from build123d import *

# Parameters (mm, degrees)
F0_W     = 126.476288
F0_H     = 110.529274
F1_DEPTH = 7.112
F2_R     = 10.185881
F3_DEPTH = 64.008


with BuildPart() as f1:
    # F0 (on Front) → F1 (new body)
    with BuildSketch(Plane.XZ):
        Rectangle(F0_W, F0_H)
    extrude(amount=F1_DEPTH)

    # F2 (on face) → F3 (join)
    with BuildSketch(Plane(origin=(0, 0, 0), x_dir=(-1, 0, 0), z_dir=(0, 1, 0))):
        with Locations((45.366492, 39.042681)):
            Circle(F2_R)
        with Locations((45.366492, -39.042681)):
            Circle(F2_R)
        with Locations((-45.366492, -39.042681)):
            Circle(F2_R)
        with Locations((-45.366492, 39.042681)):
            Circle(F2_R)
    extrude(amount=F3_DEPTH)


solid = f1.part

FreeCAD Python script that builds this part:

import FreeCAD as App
import Part
import Sketcher
Q = App.Units.Quantity


def add_polygon(sketch, points):
    """Adds a closed chain of lines whose ends are joined by coincident constraints."""
    first, n = sketch.GeometryCount, len(points)
    for a, b in zip(points, points[1:] + points[:1]):
        sketch.addGeometry(Part.LineSegment(App.Vector(*a, 0), App.Vector(*b, 0)), False)
    for i in range(n):
        sketch.addConstraint(Sketcher.Constraint("Coincident", first + i, 2, first + (i + 1) % n, 1))

doc = App.newDocument("Part")
body = doc.addObject("PartDesign::Body", "Body")

# Sketch on XZ plane
sketch1 = body.newObject("Sketcher::SketchObject", "Sketch")
sketch1.AttachmentSupport = (doc.getObject("XZ_Plane"), [""])
sketch1.MapMode = "FlatFace"
add_polygon(sketch1, [(-63, 55), (-63, -55), (63, -55), (63, 55)])  # lines 0-3
sketch1.addConstraint(Sketcher.Constraint("Vertical", 0))
sketch1.addConstraint(Sketcher.Constraint("Horizontal", 1))
sketch1.addConstraint(Sketcher.Constraint("Vertical", 2))
sketch1.addConstraint(Sketcher.Constraint("Horizontal", 3))
sketch1.addConstraint(Sketcher.Constraint("Symmetric", 0, 2, 2, 2, -1, 1))
sketch1.addConstraint(Sketcher.Constraint("DistanceX", 1, 1, 1, 2, Q("126.476288 mm")))
sketch1.addConstraint(Sketcher.Constraint("DistanceY", 0, 2, 0, 1, Q("110.529274 mm")))
pad1 = body.newObject("PartDesign::Pad", "Pad")
pad1.Profile = sketch1
pad1.Length = Q("0.28 in")

# Sketch on XZ plane
sketch2 = body.newObject("Sketcher::SketchObject", "Sketch001")
sketch2.AttachmentSupport = (doc.getObject("XZ_Plane"), [""])
sketch2.MapMode = "FlatFace"
sketch2.addGeometry(Part.Circle(App.Vector(-45, 39, 0), App.Vector(0, 0, 1), 10), False)
sketch2.addGeometry(Part.Circle(App.Vector(-45, -39, 0), App.Vector(0, 0, 1), 10), False)
sketch2.addGeometry(Part.Circle(App.Vector(45, -39, 0), App.Vector(0, 0, 1), 10), False)
sketch2.addGeometry(Part.Circle(App.Vector(45, 39, 0), App.Vector(0, 0, 1), 10), False)
sketch2.addConstraint(Sketcher.Constraint("Equal", 0, 1))
sketch2.addConstraint(Sketcher.Constraint("Equal", 1, 2))
sketch2.addConstraint(Sketcher.Constraint("Equal", 2, 3))
sketch2.addConstraint(Sketcher.Constraint("Symmetric", 0, 3, 2, 3, -1, 1))
sketch2.addConstraint(Sketcher.Constraint("Symmetric", 1, 3, 3, 3, -1, 1))
sketch2.addConstraint(Sketcher.Constraint("Symmetric", 1, 3, 2, 3, -2))
sketch2.addConstraint(Sketcher.Constraint("Diameter", 0, Q("20.371762 mm")))
sketch2.addConstraint(Sketcher.Constraint("DistanceY", -1, 1, 0, 3, Q("39.042681 mm")))
sketch2.addConstraint(Sketcher.Constraint("DistanceX", 0, 3, -1, 1, Q("45.366492 mm")))
pad2 = body.newObject("PartDesign::Pad", "Pad001")
pad2.Profile = sketch2
pad2.Length = Q("2.52 in")
pad2.Reversed = True

doc.recompute()
